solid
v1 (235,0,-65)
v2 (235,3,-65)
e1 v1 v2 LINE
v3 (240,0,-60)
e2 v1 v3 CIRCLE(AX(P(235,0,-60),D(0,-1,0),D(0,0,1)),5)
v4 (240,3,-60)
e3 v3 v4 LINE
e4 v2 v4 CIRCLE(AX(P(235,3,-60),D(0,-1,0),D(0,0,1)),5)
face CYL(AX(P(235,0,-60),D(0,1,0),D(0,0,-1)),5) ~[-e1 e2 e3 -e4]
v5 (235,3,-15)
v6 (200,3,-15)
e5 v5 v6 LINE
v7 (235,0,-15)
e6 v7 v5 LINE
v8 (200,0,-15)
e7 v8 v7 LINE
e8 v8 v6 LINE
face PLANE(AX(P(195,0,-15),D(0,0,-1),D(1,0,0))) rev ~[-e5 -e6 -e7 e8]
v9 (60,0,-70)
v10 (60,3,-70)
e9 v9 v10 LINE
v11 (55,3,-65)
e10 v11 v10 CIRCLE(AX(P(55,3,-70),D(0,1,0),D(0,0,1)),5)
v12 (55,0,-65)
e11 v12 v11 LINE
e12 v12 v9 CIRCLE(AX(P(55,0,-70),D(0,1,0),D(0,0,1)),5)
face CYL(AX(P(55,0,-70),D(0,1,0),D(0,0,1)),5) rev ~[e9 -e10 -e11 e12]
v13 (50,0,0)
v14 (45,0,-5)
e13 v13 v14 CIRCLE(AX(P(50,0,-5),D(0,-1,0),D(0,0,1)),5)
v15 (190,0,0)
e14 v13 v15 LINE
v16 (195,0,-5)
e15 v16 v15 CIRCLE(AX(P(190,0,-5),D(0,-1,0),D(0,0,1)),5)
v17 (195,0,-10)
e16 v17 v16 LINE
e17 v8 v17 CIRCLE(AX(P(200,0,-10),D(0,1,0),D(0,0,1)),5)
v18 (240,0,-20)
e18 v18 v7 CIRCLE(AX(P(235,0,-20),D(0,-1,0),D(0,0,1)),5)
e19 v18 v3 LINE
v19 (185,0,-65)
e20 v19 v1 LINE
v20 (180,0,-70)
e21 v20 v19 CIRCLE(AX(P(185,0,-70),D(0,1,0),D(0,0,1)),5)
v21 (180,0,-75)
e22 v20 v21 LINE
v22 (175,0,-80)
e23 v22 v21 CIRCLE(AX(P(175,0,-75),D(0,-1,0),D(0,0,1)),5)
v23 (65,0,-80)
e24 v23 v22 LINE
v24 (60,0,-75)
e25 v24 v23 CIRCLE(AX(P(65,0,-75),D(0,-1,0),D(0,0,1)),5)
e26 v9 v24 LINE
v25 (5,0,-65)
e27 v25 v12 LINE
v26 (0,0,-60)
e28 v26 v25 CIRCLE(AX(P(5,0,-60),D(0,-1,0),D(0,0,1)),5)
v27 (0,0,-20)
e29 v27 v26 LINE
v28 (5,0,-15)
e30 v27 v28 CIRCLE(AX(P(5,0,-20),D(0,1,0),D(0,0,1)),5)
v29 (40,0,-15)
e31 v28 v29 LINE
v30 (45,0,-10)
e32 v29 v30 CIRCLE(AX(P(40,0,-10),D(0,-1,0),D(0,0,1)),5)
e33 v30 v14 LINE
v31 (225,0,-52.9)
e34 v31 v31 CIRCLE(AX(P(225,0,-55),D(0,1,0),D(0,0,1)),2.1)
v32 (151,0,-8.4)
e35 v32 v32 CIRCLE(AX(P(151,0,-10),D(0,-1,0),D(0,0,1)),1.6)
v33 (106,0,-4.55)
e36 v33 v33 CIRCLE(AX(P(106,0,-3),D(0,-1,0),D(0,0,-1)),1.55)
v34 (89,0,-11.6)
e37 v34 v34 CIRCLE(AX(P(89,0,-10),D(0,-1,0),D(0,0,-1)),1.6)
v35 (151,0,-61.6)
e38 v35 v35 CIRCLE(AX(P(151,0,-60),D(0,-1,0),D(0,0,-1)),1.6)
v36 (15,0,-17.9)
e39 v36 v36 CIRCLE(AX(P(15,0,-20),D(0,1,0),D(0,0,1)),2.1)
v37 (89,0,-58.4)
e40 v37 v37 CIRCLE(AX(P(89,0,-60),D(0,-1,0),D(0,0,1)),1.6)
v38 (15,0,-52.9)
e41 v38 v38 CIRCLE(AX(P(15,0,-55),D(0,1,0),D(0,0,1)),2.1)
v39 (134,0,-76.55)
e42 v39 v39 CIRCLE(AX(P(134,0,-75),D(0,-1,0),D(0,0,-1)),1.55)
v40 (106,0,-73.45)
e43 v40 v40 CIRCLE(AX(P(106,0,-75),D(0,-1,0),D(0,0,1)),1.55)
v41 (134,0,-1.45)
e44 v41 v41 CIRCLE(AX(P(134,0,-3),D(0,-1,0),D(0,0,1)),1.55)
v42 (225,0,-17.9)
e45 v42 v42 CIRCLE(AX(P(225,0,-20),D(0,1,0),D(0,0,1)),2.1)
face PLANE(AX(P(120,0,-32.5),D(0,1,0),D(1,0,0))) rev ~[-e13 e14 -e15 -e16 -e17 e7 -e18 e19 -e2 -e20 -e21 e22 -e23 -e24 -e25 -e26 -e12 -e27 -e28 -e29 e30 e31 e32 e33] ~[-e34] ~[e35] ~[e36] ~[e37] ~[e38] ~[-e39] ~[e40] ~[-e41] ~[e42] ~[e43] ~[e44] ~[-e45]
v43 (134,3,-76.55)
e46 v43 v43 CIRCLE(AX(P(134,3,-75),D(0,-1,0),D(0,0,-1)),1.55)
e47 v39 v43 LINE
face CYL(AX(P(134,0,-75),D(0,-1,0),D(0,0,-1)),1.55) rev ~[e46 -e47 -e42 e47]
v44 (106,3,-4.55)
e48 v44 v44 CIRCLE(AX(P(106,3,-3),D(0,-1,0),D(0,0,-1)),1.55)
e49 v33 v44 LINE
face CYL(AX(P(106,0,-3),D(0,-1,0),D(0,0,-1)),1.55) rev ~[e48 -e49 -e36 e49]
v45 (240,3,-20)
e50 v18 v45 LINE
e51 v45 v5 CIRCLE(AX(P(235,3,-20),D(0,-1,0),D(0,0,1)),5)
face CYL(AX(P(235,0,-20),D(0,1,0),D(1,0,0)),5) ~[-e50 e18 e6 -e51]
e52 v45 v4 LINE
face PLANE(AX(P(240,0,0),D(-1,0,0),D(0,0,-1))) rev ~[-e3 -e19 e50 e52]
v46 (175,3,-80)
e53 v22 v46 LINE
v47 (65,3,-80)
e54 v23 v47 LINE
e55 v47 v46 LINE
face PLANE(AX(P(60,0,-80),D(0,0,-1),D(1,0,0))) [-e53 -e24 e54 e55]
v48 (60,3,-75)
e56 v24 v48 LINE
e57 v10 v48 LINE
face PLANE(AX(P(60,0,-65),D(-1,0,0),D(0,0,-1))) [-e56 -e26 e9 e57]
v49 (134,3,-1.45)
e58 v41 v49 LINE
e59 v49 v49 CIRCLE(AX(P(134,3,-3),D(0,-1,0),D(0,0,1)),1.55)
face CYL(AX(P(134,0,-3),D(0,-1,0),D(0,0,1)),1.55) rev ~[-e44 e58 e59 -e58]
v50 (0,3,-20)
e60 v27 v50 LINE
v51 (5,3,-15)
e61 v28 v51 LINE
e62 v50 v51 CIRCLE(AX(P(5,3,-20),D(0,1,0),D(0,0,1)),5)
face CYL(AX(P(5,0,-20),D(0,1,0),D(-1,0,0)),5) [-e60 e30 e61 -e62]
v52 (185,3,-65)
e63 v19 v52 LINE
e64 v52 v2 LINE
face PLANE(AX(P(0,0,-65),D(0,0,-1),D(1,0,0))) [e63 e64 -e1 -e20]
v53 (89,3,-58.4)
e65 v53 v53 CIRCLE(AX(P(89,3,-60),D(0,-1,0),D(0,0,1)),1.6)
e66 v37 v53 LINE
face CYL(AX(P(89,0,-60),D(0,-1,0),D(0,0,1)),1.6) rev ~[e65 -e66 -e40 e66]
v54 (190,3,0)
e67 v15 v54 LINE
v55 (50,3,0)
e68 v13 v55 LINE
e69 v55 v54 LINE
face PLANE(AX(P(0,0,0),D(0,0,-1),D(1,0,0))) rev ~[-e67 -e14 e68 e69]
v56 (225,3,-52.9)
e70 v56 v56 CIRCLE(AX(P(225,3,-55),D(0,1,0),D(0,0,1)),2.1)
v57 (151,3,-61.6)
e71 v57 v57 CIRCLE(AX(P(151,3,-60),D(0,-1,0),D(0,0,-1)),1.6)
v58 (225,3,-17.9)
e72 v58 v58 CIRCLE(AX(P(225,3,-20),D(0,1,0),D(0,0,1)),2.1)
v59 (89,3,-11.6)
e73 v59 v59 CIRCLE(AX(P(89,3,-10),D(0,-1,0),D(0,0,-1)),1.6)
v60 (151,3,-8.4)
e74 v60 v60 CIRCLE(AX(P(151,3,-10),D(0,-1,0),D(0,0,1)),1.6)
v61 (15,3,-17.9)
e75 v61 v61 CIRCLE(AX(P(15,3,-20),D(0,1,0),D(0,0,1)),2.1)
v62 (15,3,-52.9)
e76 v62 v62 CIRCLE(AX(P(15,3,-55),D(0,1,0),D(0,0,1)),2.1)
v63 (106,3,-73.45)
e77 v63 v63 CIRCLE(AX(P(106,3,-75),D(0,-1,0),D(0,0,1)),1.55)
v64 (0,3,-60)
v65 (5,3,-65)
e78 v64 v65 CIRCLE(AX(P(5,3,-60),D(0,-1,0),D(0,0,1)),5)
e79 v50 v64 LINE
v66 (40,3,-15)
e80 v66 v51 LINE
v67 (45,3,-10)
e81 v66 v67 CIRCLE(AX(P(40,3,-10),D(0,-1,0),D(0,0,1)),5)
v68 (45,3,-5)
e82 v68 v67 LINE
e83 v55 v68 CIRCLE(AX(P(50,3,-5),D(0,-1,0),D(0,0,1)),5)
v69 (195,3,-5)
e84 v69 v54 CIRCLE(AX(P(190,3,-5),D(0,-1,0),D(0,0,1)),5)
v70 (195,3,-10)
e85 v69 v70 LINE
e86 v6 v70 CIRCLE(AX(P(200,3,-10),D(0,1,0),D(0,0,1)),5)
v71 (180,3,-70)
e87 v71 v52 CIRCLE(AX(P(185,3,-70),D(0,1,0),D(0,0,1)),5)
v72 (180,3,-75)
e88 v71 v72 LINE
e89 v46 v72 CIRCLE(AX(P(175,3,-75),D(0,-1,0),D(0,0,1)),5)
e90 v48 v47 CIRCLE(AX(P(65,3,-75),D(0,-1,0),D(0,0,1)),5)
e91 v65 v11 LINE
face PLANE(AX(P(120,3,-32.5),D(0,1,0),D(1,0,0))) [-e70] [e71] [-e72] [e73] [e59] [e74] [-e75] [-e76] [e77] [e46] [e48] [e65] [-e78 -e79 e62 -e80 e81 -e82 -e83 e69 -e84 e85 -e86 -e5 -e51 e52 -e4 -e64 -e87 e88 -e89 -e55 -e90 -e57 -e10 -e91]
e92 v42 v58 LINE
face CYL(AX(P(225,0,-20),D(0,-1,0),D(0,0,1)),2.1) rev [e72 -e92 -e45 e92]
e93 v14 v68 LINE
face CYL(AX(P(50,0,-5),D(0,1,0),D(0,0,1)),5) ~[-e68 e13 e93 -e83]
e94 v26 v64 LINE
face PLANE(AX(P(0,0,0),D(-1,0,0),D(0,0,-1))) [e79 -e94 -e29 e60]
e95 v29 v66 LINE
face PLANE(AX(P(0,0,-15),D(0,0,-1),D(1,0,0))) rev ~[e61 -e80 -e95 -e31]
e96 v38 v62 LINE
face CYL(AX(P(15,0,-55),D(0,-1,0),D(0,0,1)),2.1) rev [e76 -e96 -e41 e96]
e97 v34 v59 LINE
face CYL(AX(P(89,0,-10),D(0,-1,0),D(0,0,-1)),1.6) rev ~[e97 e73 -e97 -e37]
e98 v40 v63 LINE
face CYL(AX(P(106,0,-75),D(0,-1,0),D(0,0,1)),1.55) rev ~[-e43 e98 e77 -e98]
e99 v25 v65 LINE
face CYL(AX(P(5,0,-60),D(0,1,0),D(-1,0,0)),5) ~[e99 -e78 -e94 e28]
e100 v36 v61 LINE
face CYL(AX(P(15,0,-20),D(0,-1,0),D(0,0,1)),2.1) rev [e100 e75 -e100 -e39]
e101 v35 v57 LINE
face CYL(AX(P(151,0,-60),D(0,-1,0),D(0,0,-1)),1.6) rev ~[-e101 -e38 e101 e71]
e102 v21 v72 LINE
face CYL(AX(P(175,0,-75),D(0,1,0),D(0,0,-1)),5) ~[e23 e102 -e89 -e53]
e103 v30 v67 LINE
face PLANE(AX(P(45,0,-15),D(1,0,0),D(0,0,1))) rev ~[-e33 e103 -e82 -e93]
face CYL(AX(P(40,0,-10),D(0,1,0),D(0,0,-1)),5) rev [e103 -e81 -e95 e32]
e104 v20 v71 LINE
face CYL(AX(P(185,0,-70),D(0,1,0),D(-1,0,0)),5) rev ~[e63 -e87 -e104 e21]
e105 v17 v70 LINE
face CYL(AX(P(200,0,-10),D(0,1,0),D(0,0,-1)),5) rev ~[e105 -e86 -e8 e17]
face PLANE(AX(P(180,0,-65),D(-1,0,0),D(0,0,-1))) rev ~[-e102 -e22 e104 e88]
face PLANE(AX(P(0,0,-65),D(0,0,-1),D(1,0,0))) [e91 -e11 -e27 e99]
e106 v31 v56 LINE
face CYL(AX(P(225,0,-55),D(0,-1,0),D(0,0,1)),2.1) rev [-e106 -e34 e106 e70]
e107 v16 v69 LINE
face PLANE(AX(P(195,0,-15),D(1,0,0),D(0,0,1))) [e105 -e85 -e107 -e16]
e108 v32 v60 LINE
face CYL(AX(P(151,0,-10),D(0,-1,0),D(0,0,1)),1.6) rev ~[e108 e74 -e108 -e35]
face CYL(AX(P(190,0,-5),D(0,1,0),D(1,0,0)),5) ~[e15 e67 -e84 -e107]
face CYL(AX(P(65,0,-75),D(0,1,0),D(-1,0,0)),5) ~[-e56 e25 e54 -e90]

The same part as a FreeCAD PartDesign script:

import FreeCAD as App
import Part
import Sketcher

V = App.Vector


def edges_at(feature, points):
    """Names of the edges that pass closest to the given points."""
    edges = feature.Shape.Edges
    near = lambda p: min(range(len(edges)), key=lambda i: edges[i].distToShape(Part.Vertex(*p))[0])
    return sorted({f"Edge{near(p) + 1}" for p in points})


def add_polygon(sketch, points):
    """Adds a closed chain of lines whose ends are joined by coincident constraints."""
    first, n = sketch.GeometryCount, len(points)
    for a, b in zip(points, points[1:] + points[:1]):
        sketch.addGeometry(Part.LineSegment(App.Vector(*a, 0), App.Vector(*b, 0)), False)
    for i in range(n):
        sketch.addConstraint(Sketcher.Constraint("Coincident", first + i, 2, first + (i + 1) % n, 1))

doc = App.newDocument("Part")
body = doc.addObject("PartDesign::Body", "Body")

sketch1 = body.newObject("Sketcher::SketchObject", "Sketch")
sketch1.AttachmentSupport = (doc.getObject("XZ_Plane"), [""])
sketch1.MapMode = "FlatFace"
add_polygon(sketch1, [(0, -65), (0, 0), (240, 0), (240, -65), (180, -65), (180, -80), (60, -80), (60, -65)])
sketch1.addGeometry(Part.Circle(V(15, -20, 0), V(0, 0, 1), 2.1), False)
sketch1.addGeometry(Part.Circle(V(225, -20, 0), V(0, 0, 1), 2.1), False)
sketch1.addGeometry(Part.Circle(V(15, -55, 0), V(0, 0, 1), 2.1), False)
sketch1.addGeometry(Part.Circle(V(225, -55, 0), V(0, 0, 1), 2.1), False)
sketch1.addConstraint(Sketcher.Constraint("Vertical", 0))
sketch1.addConstraint(Sketcher.Constraint("Horizontal", 1))
sketch1.addConstraint(Sketcher.Constraint("Vertical", 2))
sketch1.addConstraint(Sketcher.Constraint("Horizontal", 3))
sketch1.addConstraint(Sketcher.Constraint("Vertical", 4))
sketch1.addConstraint(Sketcher.Constraint("Horizontal", 5))
sketch1.addConstraint(Sketcher.Constraint("Vertical", 6))
sketch1.addConstraint(Sketcher.Constraint("Horizontal", 7))
sketch1.addConstraint(Sketcher.Constraint("Coincident", 0, 2, -1, 1))
sketch1.addConstraint(Sketcher.Constraint("Equal", 8, 9))
sketch1.addConstraint(Sketcher.Constraint("Equal", 9, 10))
sketch1.addConstraint(Sketcher.Constraint("Equal", 10, 11))
sketch1.addConstraint(Sketcher.Constraint("Horizontal", 8, 3, 9, 3))
sketch1.addConstraint(Sketcher.Constraint("Horizontal", 10, 3, 11, 3))
sketch1.addConstraint(Sketcher.Constraint("Horizontal", 3, 2, 6, 2))
sketch1.addConstraint(Sketcher.Constraint("Vertical", 8, 3, 10, 3))
sketch1.addConstraint(Sketcher.Constraint("Vertical", 9, 3, 11, 3))
sketch1.addConstraint(Sketcher.Constraint("Equal", 3, 7))
sketch1.addConstraint(Sketcher.Constraint("Diameter", 8, 4.2))
sketch1.addConstraint(Sketcher.Constraint("DistanceX", 1, 1, 1, 2, 240.0))
sketch1.addConstraint(Sketcher.Constraint("DistanceX", 3, 2, 3, 1, 60.0))
sketch1.addConstraint(Sketcher.Constraint("DistanceY", 0, 1, 0, 2, 65.0))
sketch1.addConstraint(Sketcher.Constraint("DistanceY", 4, 2, 4, 1, 15.0))
sketch1.addConstraint(Sketcher.Constraint("DistanceX", -1, 1, 8, 3, 15.0))
sketch1.addConstraint(Sketcher.Constraint("DistanceY", 8, 3, -1, 1, 20.0))
sketch1.addConstraint(Sketcher.Constraint("DistanceX", -1, 1, 9, 3, 225.0))
sketch1.addConstraint(Sketcher.Constraint("DistanceY", 10, 3, -1, 1, 55.0))
pad1 = body.newObject("PartDesign::Pad", "Pad")
pad1.Profile = sketch1
pad1.Length = 3
pad1.Reversed = True

sketch2 = body.newObject("Sketcher::SketchObject", "Sketch001")
sketch2.AttachmentSupport = (doc.getObject("XZ_Plane"), [""])
sketch2.MapMode = "FlatFace"
sketch2.addGeometry(Part.Circle(V(89, -10, 0), V(0, 0, 1), 1.6), False)
sketch2.addGeometry(Part.Circle(V(151, -10, 0), V(0, 0, 1), 1.6), False)
sketch2.addGeometry(Part.Circle(V(151, -60, 0), V(0, 0, 1), 1.6), False)
sketch2.addGeometry(Part.Circle(V(89, -60, 0), V(0, 0, 1), 1.6), False)
sketch2.addGeometry(Part.Circle(V(106, -3, 0), V(0, 0, 1), 1.6), False)
sketch2.addGeometry(Part.Circle(V(134, -3, 0), V(0, 0, 1), 1.6), False)
sketch2.addGeometry(Part.Circle(V(134, -75, 0), V(0, 0, 1), 1.6), False)
sketch2.addGeometry(Part.Circle(V(106, -75, 0), V(0, 0, 1), 1.6), False)
add_polygon(sketch2, [(0, 0), (0, -15), (45, -15), (45, 0)])
add_polygon(sketch2, [(195, 0), (195, -15), (240, -15), (240, 0)])
sketch2.addConstraint(Sketcher.Constraint("Vertical", 8))
sketch2.addConstraint(Sketcher.Constraint("Horizontal", 9))
sketch2.addConstraint(Sketcher.Constraint("Vertical", 10))
sketch2.addConstraint(Sketcher.Constraint("Horizontal", 11))
sketch2.addConstraint(Sketcher.Constraint("Vertical", 12))
sketch2.addConstraint(Sketcher.Constraint("Horizontal", 13))
sketch2.addConstraint(Sketcher.Constraint("Vertical", 14))
sketch2.addConstraint(Sketcher.Constraint("Horizontal", 15))
sketch2.addConstraint(Sketcher.Constraint("Coincident", 11, 2, -1, 1))
sketch2.addConstraint(Sketcher.Constraint("Equal", 0, 1))
sketch2.addConstraint(Sketcher.Constraint("Equal", 1, 2))
sketch2.addConstraint(Sketcher.Constraint("Equal", 2, 3))
sketch2.addConstraint(Sketcher.Constraint("Equal", 4, 5))
sketch2.addConstraint(Sketcher.Constraint("Equal", 5, 6))
sketch2.addConstraint(Sketcher.Constraint("Equal", 6, 7))
sketch2.addConstraint(Sketcher.Constraint("PointOnObject", 14, 2, -1))
sketch2.addConstraint(Sketcher.Constraint("Horizontal", 0, 3, 1, 3))
sketch2.addConstraint(Sketcher.Constraint("Horizontal", 2, 3, 3, 3))
sketch2.addConstraint(Sketcher.Constraint("Horizontal", 4, 3, 5, 3))
sketch2.addConstraint(Sketcher.Constraint("Horizontal", 6, 3, 7, 3))
sketch2.addConstraint(Sketcher.Constraint("Horizontal", 9, 2, 12, 2))
sketch2.addConstraint(Sketcher.Constraint("Vertical", 1, 3, 2, 3))
sketch2.addConstraint(Sketcher.Constraint("Vertical", 0, 3, 3, 3))
sketch2.addConstraint(Sketcher.Constraint("Vertical", 5, 3, 6, 3))
sketch2.addConstraint(Sketcher.Constraint("Vertical", 4, 3, 7, 3))
sketch2.addConstraint(Sketcher.Constraint("Equal", 11, 13))
sketch2.addConstraint(Sketcher.Constraint("Diameter", 0, 3.2))
sketch2.addConstraint(Sketcher.Constraint("Diameter", 4, 3.1))
sketch2.addConstraint(Sketcher.Constraint("DistanceX", 9, 1, 9, 2, 45.0))
sketch2.addConstraint(Sketcher.Constraint("DistanceY", 8, 2, 8, 1, 15.0))
sketch2.addConstraint(Sketcher.Constraint("DistanceX", -1, 1, 0, 3, 89.0))
sketch2.addConstraint(Sketcher.Constraint("DistanceY", 0, 3, -1, 1, 10.0))
sketch2.addConstraint(Sketcher.Constraint("DistanceX", -1, 1, 1, 3, 151.0))
sketch2.addConstraint(Sketcher.Constraint("DistanceY", 2, 3, -1, 1, 60.0))
sketch2.addConstraint(Sketcher.Constraint("DistanceX", -1, 1, 4, 3, 106.0))
sketch2.addConstraint(Sketcher.Constraint("DistanceY", 4, 3, -1, 1, 3.0))
sketch2.addConstraint(Sketcher.Constraint("DistanceX", -1, 1, 5, 3, 134.0))
sketch2.addConstraint(Sketcher.Constraint("DistanceY", 6, 3, -1, 1, 75.0))
sketch2.addConstraint(Sketcher.Constraint("DistanceX", -1, 1, 12, 2, 195.0))
pocket1 = body.newObject("PartDesign::Pocket", "Pocket")
pocket1.Profile = sketch2
pocket1.Type = "ThroughAll"
doc.recompute()

fillet = body.newObject("PartDesign::Fillet", "Fillet")
fillet.Base = (pocket1, edges_at(pocket1, [
    (0, 1.5, -65),
    (60, 1.5, -65),
    (60, 1.5, -80),
    (180, 1.5, -80),
    (180, 1.5, -65),
    (240, 1.5, -65),
    (45, 1.5, 0),
    (45, 1.5, -15),
    (0, 1.5, -15),
    (240, 1.5, -15),
    (195, 1.5, -15),
    (195, 1.5, 0),
]))
fillet.Radius = 5

doc.recompute()
